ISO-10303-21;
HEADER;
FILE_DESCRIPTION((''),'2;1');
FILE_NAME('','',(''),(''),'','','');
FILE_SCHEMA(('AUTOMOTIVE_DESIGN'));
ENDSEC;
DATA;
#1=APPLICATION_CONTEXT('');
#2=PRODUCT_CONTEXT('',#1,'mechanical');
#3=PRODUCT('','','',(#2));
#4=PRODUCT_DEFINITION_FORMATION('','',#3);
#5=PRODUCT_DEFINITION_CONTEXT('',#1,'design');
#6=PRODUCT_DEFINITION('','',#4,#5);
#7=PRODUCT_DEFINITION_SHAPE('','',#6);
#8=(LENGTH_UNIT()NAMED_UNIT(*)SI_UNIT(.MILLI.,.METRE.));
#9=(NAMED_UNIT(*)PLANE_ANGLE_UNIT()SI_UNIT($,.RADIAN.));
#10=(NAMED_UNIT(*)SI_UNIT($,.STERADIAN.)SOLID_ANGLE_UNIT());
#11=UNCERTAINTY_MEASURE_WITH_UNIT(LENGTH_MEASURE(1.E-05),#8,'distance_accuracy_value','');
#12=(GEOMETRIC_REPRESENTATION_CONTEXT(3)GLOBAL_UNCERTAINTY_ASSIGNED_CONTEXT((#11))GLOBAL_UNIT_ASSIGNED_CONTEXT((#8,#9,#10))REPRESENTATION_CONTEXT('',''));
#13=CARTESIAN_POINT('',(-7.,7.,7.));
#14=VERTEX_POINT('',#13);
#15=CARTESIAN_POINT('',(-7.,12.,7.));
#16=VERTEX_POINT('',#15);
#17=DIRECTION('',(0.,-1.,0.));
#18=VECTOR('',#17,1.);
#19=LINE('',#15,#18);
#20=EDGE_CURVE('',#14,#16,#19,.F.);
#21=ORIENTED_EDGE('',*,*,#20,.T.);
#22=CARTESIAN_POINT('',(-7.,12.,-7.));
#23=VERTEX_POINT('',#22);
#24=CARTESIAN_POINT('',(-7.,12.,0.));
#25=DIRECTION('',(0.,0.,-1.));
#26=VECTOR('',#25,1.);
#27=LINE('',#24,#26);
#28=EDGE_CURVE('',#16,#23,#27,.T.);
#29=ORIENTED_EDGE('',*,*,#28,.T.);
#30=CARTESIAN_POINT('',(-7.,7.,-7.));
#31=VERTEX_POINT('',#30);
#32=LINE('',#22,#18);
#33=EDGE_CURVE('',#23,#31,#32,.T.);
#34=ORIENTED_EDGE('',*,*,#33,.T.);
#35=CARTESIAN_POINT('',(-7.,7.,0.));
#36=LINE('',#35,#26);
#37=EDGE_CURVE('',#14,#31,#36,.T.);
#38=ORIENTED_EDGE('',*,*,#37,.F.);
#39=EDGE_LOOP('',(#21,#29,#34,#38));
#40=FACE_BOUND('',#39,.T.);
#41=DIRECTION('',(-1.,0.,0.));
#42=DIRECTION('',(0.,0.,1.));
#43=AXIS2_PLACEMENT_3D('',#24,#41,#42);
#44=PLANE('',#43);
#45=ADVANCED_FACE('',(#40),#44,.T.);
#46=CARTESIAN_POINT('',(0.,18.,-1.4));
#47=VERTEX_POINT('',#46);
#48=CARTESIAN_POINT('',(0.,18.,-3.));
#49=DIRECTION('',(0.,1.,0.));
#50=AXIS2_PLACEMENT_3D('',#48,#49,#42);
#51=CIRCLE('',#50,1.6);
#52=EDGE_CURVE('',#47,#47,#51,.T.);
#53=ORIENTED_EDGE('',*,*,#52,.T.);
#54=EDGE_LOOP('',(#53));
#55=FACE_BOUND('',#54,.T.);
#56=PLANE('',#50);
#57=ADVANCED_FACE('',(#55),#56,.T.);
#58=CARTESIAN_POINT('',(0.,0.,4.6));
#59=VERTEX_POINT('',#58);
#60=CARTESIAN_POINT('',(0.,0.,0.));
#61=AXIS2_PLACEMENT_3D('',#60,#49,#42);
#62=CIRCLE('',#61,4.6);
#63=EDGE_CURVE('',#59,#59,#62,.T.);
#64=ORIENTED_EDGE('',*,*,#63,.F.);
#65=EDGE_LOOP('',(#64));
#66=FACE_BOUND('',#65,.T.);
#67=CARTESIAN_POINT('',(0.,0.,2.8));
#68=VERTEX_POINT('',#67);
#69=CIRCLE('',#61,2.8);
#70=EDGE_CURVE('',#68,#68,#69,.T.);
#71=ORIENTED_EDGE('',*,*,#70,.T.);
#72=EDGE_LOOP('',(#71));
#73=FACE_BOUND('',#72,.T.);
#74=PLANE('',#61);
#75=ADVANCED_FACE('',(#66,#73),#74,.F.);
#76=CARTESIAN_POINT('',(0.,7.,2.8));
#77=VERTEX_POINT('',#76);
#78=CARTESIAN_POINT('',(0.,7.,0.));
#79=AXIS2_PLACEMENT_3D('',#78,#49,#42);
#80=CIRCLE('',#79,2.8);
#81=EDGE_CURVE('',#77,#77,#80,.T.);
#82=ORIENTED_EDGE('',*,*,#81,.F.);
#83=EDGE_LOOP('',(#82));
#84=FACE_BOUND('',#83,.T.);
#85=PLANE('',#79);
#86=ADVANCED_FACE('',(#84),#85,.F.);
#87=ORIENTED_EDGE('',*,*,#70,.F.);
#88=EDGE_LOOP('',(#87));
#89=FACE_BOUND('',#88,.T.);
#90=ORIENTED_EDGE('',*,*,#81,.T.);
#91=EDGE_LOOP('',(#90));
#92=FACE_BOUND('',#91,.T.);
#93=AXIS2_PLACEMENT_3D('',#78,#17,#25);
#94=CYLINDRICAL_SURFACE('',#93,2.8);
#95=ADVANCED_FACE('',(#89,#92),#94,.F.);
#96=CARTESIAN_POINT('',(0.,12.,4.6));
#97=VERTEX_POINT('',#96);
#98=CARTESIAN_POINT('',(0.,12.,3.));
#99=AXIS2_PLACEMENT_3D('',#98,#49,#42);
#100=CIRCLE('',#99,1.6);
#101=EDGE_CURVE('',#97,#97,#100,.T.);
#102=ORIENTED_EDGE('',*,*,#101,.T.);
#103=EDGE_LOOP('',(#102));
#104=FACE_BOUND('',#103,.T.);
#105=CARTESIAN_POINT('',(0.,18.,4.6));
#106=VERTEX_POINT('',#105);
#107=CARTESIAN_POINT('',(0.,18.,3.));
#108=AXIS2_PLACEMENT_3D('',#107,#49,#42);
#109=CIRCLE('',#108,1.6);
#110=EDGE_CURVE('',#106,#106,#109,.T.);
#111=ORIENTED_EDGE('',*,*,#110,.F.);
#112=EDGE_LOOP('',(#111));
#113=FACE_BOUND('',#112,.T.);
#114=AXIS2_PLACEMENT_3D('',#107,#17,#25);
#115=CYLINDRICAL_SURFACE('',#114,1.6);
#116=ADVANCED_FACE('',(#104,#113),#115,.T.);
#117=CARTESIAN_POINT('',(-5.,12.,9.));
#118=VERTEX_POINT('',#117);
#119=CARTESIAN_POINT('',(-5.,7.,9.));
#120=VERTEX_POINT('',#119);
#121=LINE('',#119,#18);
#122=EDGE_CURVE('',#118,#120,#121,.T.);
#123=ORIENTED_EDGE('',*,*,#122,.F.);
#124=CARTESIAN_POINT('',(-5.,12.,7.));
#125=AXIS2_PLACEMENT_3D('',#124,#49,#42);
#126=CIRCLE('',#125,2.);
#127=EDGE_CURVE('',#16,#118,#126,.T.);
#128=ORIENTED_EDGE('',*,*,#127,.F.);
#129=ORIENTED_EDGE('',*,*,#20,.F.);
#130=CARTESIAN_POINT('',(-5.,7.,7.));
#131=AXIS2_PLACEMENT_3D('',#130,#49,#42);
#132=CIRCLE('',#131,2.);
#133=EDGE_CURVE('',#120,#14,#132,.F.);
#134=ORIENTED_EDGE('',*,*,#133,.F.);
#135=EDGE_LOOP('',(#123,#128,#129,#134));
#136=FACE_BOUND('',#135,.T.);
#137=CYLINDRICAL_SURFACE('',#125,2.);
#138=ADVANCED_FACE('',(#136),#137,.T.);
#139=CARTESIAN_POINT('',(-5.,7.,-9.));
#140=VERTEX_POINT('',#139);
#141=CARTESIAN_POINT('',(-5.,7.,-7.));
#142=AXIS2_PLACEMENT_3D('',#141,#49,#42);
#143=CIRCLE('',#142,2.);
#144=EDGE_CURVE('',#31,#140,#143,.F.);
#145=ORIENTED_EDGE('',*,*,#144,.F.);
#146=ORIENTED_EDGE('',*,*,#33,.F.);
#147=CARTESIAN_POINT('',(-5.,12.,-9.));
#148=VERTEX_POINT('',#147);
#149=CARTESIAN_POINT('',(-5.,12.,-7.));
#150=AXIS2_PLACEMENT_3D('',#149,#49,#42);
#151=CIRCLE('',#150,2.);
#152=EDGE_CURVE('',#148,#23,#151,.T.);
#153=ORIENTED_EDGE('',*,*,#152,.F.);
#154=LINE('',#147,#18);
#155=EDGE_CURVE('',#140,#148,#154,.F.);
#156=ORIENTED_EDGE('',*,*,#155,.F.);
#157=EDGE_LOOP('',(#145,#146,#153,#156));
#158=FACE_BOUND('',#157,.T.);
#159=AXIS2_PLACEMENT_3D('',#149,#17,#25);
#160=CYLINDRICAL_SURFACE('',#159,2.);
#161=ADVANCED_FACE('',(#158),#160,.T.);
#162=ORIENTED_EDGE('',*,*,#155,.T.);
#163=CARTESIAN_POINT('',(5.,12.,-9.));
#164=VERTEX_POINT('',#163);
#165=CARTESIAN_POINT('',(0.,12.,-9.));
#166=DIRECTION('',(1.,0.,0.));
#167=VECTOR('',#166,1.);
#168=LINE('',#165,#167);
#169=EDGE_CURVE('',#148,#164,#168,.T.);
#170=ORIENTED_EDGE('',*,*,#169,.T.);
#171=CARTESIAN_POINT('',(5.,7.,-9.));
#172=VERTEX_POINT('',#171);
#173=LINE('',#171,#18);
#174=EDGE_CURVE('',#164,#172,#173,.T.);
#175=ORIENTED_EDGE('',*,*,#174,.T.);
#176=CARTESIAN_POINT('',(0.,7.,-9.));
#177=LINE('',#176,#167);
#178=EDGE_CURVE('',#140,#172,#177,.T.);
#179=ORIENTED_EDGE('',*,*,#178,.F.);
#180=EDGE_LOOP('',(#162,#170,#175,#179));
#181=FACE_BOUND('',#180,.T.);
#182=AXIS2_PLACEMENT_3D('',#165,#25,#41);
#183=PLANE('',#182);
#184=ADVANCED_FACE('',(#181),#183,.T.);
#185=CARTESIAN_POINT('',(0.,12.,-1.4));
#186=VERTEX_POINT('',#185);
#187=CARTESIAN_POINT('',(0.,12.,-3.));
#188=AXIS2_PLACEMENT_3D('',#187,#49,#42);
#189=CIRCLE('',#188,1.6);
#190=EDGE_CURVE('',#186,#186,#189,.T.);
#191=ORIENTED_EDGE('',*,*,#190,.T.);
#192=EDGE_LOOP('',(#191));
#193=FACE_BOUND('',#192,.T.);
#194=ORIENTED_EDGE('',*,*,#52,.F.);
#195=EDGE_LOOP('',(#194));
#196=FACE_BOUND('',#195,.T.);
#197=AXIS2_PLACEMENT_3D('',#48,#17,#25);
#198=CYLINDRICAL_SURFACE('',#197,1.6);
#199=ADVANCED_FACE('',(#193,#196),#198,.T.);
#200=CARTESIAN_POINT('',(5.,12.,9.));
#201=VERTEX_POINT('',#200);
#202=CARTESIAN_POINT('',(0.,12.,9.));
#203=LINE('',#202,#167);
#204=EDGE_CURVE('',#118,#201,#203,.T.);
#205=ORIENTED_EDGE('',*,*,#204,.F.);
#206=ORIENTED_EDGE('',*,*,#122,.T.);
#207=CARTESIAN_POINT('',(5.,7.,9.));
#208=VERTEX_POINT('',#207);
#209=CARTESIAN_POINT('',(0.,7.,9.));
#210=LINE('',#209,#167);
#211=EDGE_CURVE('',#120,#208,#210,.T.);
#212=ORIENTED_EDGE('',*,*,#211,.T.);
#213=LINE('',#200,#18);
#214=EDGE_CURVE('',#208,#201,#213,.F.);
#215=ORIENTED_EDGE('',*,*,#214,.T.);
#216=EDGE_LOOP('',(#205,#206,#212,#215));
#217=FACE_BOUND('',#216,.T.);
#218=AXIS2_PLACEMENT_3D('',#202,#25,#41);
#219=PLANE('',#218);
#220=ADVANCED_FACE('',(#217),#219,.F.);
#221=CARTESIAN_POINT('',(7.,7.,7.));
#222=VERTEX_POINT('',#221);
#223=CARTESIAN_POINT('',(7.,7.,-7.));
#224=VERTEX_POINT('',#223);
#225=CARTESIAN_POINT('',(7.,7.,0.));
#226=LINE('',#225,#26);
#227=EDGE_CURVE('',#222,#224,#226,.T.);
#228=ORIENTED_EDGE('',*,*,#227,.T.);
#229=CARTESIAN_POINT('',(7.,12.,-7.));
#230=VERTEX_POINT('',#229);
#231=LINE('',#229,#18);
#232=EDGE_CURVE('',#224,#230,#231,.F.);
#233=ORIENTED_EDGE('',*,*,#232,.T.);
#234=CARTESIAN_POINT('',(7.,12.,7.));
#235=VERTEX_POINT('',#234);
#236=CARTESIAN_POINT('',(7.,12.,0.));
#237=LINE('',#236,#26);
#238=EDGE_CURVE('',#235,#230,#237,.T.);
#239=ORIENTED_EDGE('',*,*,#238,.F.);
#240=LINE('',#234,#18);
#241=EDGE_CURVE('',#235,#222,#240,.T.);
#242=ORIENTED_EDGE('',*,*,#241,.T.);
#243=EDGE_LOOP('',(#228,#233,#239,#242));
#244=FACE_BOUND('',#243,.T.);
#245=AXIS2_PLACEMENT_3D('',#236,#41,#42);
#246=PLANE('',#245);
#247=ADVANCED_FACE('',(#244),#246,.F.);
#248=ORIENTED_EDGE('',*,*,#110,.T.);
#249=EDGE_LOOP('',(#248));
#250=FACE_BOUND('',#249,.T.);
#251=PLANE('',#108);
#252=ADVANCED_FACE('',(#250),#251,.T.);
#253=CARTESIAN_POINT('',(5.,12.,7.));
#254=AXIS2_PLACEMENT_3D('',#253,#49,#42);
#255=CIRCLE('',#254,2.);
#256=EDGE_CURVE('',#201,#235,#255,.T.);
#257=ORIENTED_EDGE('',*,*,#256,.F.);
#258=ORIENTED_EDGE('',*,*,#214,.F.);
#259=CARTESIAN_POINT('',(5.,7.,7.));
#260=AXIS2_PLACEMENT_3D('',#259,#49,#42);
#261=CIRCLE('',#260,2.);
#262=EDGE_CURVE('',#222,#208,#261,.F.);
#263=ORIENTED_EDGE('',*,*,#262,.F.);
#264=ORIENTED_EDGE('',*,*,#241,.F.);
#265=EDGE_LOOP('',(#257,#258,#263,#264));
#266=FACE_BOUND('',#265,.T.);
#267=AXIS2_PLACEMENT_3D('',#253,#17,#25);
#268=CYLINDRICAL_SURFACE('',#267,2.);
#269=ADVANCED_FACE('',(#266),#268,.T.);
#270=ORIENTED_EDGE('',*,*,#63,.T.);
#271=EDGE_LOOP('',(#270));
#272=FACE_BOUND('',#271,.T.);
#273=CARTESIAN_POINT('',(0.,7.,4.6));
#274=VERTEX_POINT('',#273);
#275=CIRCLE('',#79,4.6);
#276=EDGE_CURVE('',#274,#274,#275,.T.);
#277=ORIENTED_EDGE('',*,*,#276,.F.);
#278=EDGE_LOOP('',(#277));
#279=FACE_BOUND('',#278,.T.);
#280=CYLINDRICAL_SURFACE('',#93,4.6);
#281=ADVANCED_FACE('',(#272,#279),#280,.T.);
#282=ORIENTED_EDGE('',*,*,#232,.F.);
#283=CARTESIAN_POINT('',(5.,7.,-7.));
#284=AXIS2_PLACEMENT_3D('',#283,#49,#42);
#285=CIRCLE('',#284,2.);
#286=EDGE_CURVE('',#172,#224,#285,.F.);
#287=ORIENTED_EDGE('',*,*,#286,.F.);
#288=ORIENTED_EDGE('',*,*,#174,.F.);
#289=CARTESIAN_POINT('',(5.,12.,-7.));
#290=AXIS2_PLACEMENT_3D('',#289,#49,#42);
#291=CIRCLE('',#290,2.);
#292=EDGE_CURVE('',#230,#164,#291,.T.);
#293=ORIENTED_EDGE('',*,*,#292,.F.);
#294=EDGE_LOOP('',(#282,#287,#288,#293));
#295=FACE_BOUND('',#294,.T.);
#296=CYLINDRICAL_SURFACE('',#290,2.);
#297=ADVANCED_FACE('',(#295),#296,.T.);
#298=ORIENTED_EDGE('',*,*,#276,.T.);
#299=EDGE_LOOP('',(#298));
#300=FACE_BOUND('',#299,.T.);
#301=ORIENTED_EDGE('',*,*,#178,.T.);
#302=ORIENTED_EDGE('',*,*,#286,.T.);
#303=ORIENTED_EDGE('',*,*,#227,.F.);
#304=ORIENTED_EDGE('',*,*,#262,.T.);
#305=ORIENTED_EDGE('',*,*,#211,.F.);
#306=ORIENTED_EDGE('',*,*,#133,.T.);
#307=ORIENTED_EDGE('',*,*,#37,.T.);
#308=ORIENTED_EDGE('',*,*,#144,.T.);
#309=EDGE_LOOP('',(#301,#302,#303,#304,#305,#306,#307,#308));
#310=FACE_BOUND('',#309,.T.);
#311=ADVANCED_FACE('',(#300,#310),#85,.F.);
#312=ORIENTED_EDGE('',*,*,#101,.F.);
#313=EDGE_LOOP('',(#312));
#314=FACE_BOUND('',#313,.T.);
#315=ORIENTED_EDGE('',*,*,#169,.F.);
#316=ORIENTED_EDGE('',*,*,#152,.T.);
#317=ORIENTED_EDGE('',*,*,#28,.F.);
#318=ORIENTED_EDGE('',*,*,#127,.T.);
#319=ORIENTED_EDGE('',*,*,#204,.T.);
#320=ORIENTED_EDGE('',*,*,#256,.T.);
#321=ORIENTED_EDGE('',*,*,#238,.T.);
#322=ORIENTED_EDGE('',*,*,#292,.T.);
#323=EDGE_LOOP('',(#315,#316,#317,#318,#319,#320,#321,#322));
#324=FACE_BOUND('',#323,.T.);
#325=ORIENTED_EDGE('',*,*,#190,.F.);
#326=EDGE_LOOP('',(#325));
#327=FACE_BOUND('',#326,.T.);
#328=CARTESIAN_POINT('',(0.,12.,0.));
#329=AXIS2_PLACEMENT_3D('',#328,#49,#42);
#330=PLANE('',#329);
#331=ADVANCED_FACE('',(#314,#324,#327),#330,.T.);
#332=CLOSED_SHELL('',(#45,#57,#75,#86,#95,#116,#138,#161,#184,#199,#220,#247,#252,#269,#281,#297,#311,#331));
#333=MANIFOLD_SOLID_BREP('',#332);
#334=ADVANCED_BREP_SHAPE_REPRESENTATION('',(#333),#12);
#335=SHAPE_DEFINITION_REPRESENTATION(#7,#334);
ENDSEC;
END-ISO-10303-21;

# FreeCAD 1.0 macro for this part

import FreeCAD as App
import Part
import Sketcher
from FreeCAD import Vector
Q = App.Units.Quantity


def edges_at(feature, points):
    """Names of the edges that pass closest to the given points."""
    edges = feature.Shape.Edges
    near = lambda p: min(range(len(edges)), key=lambda i: edges[i].distToShape(Part.Vertex(*p))[0])
    return sorted({f"Edge{near(p) + 1}" for p in points})

doc = App.newDocument("Part")
body = doc.addObject("PartDesign::Body", "Body")

# Sketch on XZ plane
sketch1 = body.newObject("Sketcher::SketchObject", "Sketch")
sketch1.AttachmentSupport = (doc.getObject("XZ_Plane"), [""])
sketch1.MapMode = "FlatFace"
sketch1.addGeometry([
    Part.Circle(Vector(0, 0, 0), Vector(0, 0, 1), 4.6),
    Part.Circle(Vector(0, 0, 0), Vector(0, 0, 1), 2.8),
], False)
sketch1.addConstraint([
    Sketcher.Constraint("Coincident", 0, 3, -1, 1),
    Sketcher.Constraint("Coincident", 1, 3, -1, 1),
    Sketcher.Constraint("Diameter", 0, Q("9.2 mm")),
    Sketcher.Constraint("Diameter", 1, Q("5.6 mm")),
])
pad1 = body.newObject("PartDesign::Pad", "Pad")
pad1.Profile = sketch1
pad1.Length = 7
pad1.Reversed = True

# Sketch on XZ plane
sketch2 = body.newObject("Sketcher::SketchObject", "Sketch001")
sketch2.AttachmentSupport = (doc.getObject("XZ_Plane"), [""])
sketch2.MapMode = "FlatFace"
sketch2.AttachmentOffset = App.Placement(Vector(0, 0, -7), App.Rotation())
sketch2.addGeometry([
    Part.LineSegment(Vector(-7, -9, 0), Vector(-7, 9, 0)),
    Part.LineSegment(Vector(-7, 9, 0), Vector(7, 9, 0)),
    Part.LineSegment(Vector(7, 9, 0), Vector(7, -9, 0)),
    Part.LineSegment(Vector(7, -9, 0), Vector(-7, -9, 0)),
], False)
sketch2.addConstraint([
    Sketcher.Constraint("Coincident", 0, 2, 1, 1),
    Sketcher.Constraint("Coincident", 1, 2, 2, 1),
    Sketcher.Constraint("Coincident", 2, 2, 3, 1),
    Sketcher.Constraint("Coincident", 3, 2, 0, 1),
    Sketcher.Constraint("Vertical", 0),
    Sketcher.Constraint("Horizontal", 1),
    Sketcher.Constraint("Vertical", 2),
    Sketcher.Constraint("Horizontal", 3),
    Sketcher.Constraint("Symmetric", 0, 2, 2, 2, -1, 1),
    Sketcher.Constraint("DistanceX", 1, 1, 1, 2, Q("14 mm")),
    Sketcher.Constraint("DistanceY", 0, 1, 0, 2, Q("18 mm")),
])
pad2 = body.newObject("PartDesign::Pad", "Pad001")
pad2.Profile = sketch2
pad2.Length = 5
pad2.Reversed = True

# Sketch on XZ plane
sketch3 = body.newObject("Sketcher::SketchObject", "Sketch002")
sketch3.AttachmentSupport = (doc.getObject("XZ_Plane"), [""])
sketch3.MapMode = "FlatFace"
sketch3.AttachmentOffset = App.Placement(Vector(0, 0, -12), App.Rotation())
sketch3.addGeometry([
    Part.Circle(Vector(0, -3, 0), Vector(0, 0, 1), 1.6),
    Part.Circle(Vector(0, 3, 0), Vector(0, 0, 1), 1.6),
], False)
sketch3.addConstraint([
    Sketcher.Constraint("Equal", 0, 1),
    Sketcher.Constraint("Symmetric", 0, 3, 1, 3, -1, 1),
    Sketcher.Constraint("PointOnObject", 0, 3, -2),
    Sketcher.Constraint("Diameter", 0, Q("3.2 mm")),
    Sketcher.Constraint("DistanceY", 0, 3, -1, 1, Q("3 mm")),
])
pad3 = body.newObject("PartDesign::Pad", "Pad002")
pad3.Profile = sketch3
pad3.Length = 6
pad3.Reversed = True
doc.recompute()

fillet = body.newObject("PartDesign::Fillet", "Fillet")
fillet.Base = (pad3, edges_at(pad3, [
    (-7, 9.5, -9),
    (-7, 9.5, 9),
    (7, 9.5, 9),
    (7, 9.5, -9),
]))
fillet.Radius = 2

doc.recompute()
